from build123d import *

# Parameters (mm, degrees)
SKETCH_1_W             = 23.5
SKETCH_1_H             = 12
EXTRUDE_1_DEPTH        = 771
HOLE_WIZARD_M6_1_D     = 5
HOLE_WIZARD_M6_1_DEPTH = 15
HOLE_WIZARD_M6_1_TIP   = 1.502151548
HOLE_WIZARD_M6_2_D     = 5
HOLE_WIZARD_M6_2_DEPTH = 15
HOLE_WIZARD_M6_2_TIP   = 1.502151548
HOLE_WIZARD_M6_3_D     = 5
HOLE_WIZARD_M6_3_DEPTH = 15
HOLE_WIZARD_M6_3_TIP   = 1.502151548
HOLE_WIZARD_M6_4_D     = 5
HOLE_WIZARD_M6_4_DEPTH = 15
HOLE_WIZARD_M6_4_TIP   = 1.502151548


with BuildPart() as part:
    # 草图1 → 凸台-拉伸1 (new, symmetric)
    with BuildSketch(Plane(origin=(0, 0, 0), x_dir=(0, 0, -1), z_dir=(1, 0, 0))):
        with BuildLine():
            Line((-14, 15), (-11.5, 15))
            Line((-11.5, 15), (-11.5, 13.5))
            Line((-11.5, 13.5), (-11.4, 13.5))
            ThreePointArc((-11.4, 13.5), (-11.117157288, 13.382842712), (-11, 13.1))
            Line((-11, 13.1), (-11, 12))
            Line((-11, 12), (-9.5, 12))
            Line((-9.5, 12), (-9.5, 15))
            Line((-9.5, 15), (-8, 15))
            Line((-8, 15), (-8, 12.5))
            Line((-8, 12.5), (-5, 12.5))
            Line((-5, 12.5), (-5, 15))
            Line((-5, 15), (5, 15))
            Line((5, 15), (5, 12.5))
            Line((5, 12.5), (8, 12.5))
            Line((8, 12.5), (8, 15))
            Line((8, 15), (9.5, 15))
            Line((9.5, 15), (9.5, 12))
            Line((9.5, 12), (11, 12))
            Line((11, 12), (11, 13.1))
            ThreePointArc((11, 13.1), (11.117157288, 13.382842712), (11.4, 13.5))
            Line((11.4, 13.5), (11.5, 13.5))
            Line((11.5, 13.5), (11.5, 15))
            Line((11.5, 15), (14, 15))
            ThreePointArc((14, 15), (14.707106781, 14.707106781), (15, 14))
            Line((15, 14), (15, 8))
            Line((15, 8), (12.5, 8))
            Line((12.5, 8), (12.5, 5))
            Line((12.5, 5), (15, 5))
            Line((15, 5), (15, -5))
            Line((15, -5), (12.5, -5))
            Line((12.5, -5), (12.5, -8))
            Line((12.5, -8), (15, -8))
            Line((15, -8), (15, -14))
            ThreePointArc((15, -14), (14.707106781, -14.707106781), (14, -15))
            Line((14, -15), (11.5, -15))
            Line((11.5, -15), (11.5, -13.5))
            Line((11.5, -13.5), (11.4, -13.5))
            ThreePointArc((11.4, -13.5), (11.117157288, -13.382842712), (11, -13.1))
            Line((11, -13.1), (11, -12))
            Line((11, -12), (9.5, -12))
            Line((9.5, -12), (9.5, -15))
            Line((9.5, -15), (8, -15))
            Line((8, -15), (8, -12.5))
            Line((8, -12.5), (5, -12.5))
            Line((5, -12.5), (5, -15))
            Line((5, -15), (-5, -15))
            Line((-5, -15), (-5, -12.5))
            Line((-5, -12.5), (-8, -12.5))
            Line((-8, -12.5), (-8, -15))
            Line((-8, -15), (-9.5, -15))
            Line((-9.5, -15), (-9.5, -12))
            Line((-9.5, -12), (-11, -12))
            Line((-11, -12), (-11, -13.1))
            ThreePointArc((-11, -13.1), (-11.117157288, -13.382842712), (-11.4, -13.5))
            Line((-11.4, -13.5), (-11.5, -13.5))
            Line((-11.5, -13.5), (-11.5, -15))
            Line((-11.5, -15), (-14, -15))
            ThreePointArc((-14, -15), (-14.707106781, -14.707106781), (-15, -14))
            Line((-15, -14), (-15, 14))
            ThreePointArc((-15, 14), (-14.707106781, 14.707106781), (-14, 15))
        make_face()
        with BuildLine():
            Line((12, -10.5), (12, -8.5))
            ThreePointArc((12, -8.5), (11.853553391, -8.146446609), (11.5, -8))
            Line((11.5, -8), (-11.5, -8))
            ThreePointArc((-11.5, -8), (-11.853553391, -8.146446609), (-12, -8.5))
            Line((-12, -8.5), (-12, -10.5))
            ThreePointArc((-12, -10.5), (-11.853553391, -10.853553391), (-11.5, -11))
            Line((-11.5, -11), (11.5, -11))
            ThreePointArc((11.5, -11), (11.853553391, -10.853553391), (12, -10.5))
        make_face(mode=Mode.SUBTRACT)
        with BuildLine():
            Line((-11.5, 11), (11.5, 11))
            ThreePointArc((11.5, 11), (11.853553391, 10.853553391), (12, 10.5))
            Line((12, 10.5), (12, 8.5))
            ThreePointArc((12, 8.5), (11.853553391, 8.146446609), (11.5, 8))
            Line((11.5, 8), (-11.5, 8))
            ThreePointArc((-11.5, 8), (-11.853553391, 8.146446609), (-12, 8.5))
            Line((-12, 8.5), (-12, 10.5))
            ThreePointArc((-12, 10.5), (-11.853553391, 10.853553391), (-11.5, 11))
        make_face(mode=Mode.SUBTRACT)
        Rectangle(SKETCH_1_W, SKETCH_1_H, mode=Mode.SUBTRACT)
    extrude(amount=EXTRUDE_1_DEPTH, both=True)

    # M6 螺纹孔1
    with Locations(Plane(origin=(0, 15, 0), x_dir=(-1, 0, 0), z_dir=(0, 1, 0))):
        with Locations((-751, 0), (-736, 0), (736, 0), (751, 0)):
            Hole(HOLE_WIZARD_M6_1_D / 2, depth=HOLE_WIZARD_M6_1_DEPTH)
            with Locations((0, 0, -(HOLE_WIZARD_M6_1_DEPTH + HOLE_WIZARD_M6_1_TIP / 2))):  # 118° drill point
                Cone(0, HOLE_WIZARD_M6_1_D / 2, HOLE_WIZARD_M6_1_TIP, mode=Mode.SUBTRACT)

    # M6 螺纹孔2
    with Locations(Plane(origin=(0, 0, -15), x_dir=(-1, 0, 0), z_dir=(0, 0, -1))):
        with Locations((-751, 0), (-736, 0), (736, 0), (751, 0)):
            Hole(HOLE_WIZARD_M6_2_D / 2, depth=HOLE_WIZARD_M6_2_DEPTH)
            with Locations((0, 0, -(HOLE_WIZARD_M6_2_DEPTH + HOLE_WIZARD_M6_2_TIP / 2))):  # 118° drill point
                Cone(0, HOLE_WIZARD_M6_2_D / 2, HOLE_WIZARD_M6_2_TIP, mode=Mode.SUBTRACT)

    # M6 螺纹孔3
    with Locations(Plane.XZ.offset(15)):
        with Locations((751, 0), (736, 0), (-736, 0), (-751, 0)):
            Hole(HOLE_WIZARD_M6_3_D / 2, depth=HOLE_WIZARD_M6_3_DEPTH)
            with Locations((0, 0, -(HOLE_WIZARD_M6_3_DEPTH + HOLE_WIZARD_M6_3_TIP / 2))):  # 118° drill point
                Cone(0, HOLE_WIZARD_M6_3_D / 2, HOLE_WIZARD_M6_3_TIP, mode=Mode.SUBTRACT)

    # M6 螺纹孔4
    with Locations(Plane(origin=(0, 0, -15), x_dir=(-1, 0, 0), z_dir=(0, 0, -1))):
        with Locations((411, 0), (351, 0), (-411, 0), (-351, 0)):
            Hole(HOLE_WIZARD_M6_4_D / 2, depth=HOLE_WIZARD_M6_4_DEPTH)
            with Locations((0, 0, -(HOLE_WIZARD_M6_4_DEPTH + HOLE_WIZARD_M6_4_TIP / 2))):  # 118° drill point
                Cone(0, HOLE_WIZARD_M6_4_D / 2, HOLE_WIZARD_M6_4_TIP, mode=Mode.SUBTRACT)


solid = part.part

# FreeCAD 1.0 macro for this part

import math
import FreeCAD as App
import Part
import Sketcher
from FreeCAD import Vector
Q = App.Units.Quantity

doc = App.newDocument("Part")
body = doc.addObject("PartDesign::Body", "Body")

# Sketch on YZ plane
sketch1 = doc.addObject("Sketcher::SketchObject", "Sketch")
body.addObject(sketch1)
sketch1.AttachmentSupport = (doc.YZ_Plane, [""])
sketch1.MapMode = "FlatFace"
sketch1.addGeometry(Part.LineSegment(Vector(15, 11.5, 0), Vector(15, 14, 0)), False)
sketch1.addGeometry(Part.ArcOfCircle(Part.Circle(Vector(14, 14, 0), Vector(0, 0, 1), 1), math.radians(0), math.radians(90)), False)
sketch1.addGeometry(Part.LineSegment(Vector(14, 15, 0), Vector(-14, 15, 0)), False)
sketch1.addGeometry(Part.ArcOfCircle(Part.Circle(Vector(-14, 14, 0), Vector(0, 0, 1), 1), math.radians(90), math.radians(180)), False)
sketch1.addGeometry(Part.LineSegment(Vector(-15, 14, 0), Vector(-15, 11.5, 0)), False)
sketch1.addGeometry(Part.LineSegment(Vector(-15, 11.5, 0), Vector(-13.5, 11.5, 0)), False)
sketch1.addGeometry(Part.LineSegment(Vector(-13.5, 11.5, 0), Vector(-13.5, 11.4, 0)), False)
sketch1.addGeometry(Part.ArcOfCircle(Part.Circle(Vector(-13.1, 11.4, 0), Vector(0, 0, 1), 0.4), math.radians(-180), math.radians(-90)), False)
sketch1.addGeometry(Part.LineSegment(Vector(-13.1, 11, 0), Vector(-12, 11, 0)), False)
sketch1.addGeometry(Part.LineSegment(Vector(-12, 11, 0), Vector(-12, 9.5, 0)), False)
sketch1.addGeometry(Part.LineSegment(Vector(-12, 9.5, 0), Vector(-15, 9.5, 0)), False)
sketch1.addGeometry(Part.LineSegment(Vector(-15, 9.5, 0), Vector(-15, 8, 0)), False)
sketch1.addGeometry(Part.LineSegment(Vector(-15, 8, 0), Vector(-12.5, 8, 0)), False)
sketch1.addGeometry(Part.LineSegment(Vector(-12.5, 8, 0), Vector(-12.5, 5, 0)), False)
sketch1.addGeometry(Part.LineSegment(Vector(-12.5, 5, 0), Vector(-15, 5, 0)), False)
sketch1.addGeometry(Part.LineSegment(Vector(-15, 5, 0), Vector(-15, -5, 0)), False)
sketch1.addGeometry(Part.LineSegment(Vector(-15, -5, 0), Vector(-12.5, -5, 0)), False)
sketch1.addGeometry(Part.LineSegment(Vector(-12.5, -5, 0), Vector(-12.5, -8, 0)), False)
sketch1.addGeometry(Part.LineSegment(Vector(-12.5, -8, 0), Vector(-15, -8, 0)), False)
sketch1.addGeometry(Part.LineSegment(Vector(-15, -8, 0), Vector(-15, -9.5, 0)), False)
sketch1.addGeometry(Part.LineSegment(Vector(-15, -9.5, 0), Vector(-12, -9.5, 0)), False)
sketch1.addGeometry(Part.LineSegment(Vector(-12, -9.5, 0), Vector(-12, -11, 0)), False)
sketch1.addGeometry(Part.LineSegment(Vector(-12, -11, 0), Vector(-13.1, -11, 0)), False)
sketch1.addGeometry(Part.ArcOfCircle(Part.Circle(Vector(-13.1, -11.4, 0), Vector(0, 0, 1), 0.4), math.radians(90), math.radians(180)), False)
sketch1.addGeometry(Part.LineSegment(Vector(-13.5, -11.4, 0), Vector(-13.5, -11.5, 0)), False)
sketch1.addGeometry(Part.LineSegment(Vector(-13.5, -11.5, 0), Vector(-15, -11.5, 0)), False)
sketch1.addGeometry(Part.LineSegment(Vector(-15, -11.5, 0), Vector(-15, -14, 0)), False)
sketch1.addGeometry(Part.ArcOfCircle(Part.Circle(Vector(-14, -14, 0), Vector(0, 0, 1), 1), math.radians(-180), math.radians(-90)), False)
sketch1.addGeometry(Part.LineSegment(Vector(-14, -15, 0), Vector(-8, -15, 0)), False)
sketch1.addGeometry(Part.LineSegment(Vector(-8, -15, 0), Vector(-8, -12.5, 0)), False)
sketch1.addGeometry(Part.LineSegment(Vector(-8, -12.5, 0), Vector(-5, -12.5, 0)), False)
sketch1.addGeometry(Part.LineSegment(Vector(-5, -12.5, 0), Vector(-5, -15, 0)), False)
sketch1.addGeometry(Part.LineSegment(Vector(-5, -15, 0), Vector(5, -15, 0)), False)
sketch1.addGeometry(Part.LineSegment(Vector(5, -15, 0), Vector(5, -12.5, 0)), False)
sketch1.addGeometry(Part.LineSegment(Vector(5, -12.5, 0), Vector(8, -12.5, 0)), False)
sketch1.addGeometry(Part.LineSegment(Vector(8, -12.5, 0), Vector(8, -15, 0)), False)
sketch1.addGeometry(Part.LineSegment(Vector(8, -15, 0), Vector(14, -15, 0)), False)
sketch1.addGeometry(Part.ArcOfCircle(Part.Circle(Vector(14, -14, 0), Vector(0, 0, 1), 1), math.radians(-90), math.radians(0)), False)
sketch1.addGeometry(Part.LineSegment(Vector(15, -14, 0), Vector(15, -11.5, 0)), False)
sketch1.addGeometry(Part.LineSegment(Vector(15, -11.5, 0), Vector(13.5, -11.5, 0)), False)
sketch1.addGeometry(Part.LineSegment(Vector(13.5, -11.5, 0), Vector(13.5, -11.4, 0)), False)
sketch1.addGeometry(Part.ArcOfCircle(Part.Circle(Vector(13.1, -11.4, 0), Vector(0, 0, 1), 0.4), math.radians(0), math.radians(90)), False)
sketch1.addGeometry(Part.LineSegment(Vector(13.1, -11, 0), Vector(12, -11, 0)), False)
sketch1.addGeometry(Part.LineSegment(Vector(12, -11, 0), Vector(12, -9.5, 0)), False)
sketch1.addGeometry(Part.LineSegment(Vector(12, -9.5, 0), Vector(15, -9.5, 0)), False)
sketch1.addGeometry(Part.LineSegment(Vector(15, -9.5, 0), Vector(15, -8, 0)), False)
sketch1.addGeometry(Part.LineSegment(Vector(15, -8, 0), Vector(12.5, -8, 0)), False)
sketch1.addGeometry(Part.LineSegment(Vector(12.5, -8, 0), Vector(12.5, -5, 0)), False)
sketch1.addGeometry(Part.LineSegment(Vector(12.5, -5, 0), Vector(15, -5, 0)), False)
sketch1.addGeometry(Part.LineSegment(Vector(15, -5, 0), Vector(15, 5, 0)), False)
sketch1.addGeometry(Part.LineSegment(Vector(15, 5, 0), Vector(12.5, 5, 0)), False)
sketch1.addGeometry(Part.LineSegment(Vector(12.5, 5, 0), Vector(12.5, 8, 0)), False)
sketch1.addGeometry(Part.LineSegment(Vector(12.5, 8, 0), Vector(15, 8, 0)), False)
sketch1.addGeometry(Part.LineSegment(Vector(15, 8, 0), Vector(15, 9.5, 0)), False)
sketch1.addGeometry(Part.LineSegment(Vector(15, 9.5, 0), Vector(12, 9.5, 0)), False)
sketch1.addGeometry(Part.LineSegment(Vector(12, 9.5, 0), Vector(12, 11, 0)), False)
sketch1.addGeometry(Part.LineSegment(Vector(12, 11, 0), Vector(13.1, 11, 0)), False)
sketch1.addGeometry(Part.ArcOfCircle(Part.Circle(Vector(13.1, 11.4, 0), Vector(0, 0, 1), 0.4), math.radians(-90), math.radians(0)), False)
sketch1.addGeometry(Part.LineSegment(Vector(13.5, 11.4, 0), Vector(13.5, 11.5, 0)), False)
sketch1.addGeometry(Part.LineSegment(Vector(13.5, 11.5, 0), Vector(15, 11.5, 0)), False)
sketch1.addGeometry(Part.ArcOfCircle(Part.Circle(Vector(-10.5, -11.5, 0), Vector(0, 0, 1), 0.5), math.radians(180), math.radians(270)), False)
sketch1.addGeometry(Part.LineSegment(Vector(-11, -11.5, 0), Vector(-11, 11.5, 0)), False)
sketch1.addGeometry(Part.ArcOfCircle(Part.Circle(Vector(-10.5, 11.5, 0), Vector(0, 0, 1), 0.5), math.radians(90), math.radians(180)), False)
sketch1.addGeometry(Part.LineSegment(Vector(-10.5, 12, 0), Vector(-8.5, 12, 0)), False)
sketch1.addGeometry(Part.ArcOfCircle(Part.Circle(Vector(-8.5, 11.5, 0), Vector(0, 0, 1), 0.5), math.radians(0), math.radians(90)), False)
sketch1.addGeometry(Part.LineSegment(Vector(-8, 11.5, 0), Vector(-8, -11.5, 0)), False)
sketch1.addGeometry(Part.ArcOfCircle(Part.Circle(Vector(-8.5, -11.5, 0), Vector(0, 0, 1), 0.5), math.radians(-90), math.radians(0)), False)
sketch1.addGeometry(Part.LineSegment(Vector(-8.5, -12, 0), Vector(-10.5, -12, 0)), False)
sketch1.addGeometry(Part.LineSegment(Vector(-6, 11.75, 0), Vector(6, 11.75, 0)), False)
sketch1.addGeometry(Part.LineSegment(Vector(6, 11.75, 0), Vector(6, -11.75, 0)), False)
sketch1.addGeometry(Part.LineSegment(Vector(6, -11.75, 0), Vector(-6, -11.75, 0)), False)
sketch1.addGeometry(Part.LineSegment(Vector(-6, -11.75, 0), Vector(-6, 11.75, 0)), False)
sketch1.addGeometry(Part.LineSegment(Vector(11, 11.5, 0), Vector(11, -11.5, 0)), False)
sketch1.addGeometry(Part.ArcOfCircle(Part.Circle(Vector(10.5, -11.5, 0), Vector(0, 0, 1), 0.5), math.radians(-90), math.radians(0)), False)
sketch1.addGeometry(Part.LineSegment(Vector(10.5, -12, 0), Vector(8.5, -12, 0)), False)
sketch1.addGeometry(Part.ArcOfCircle(Part.Circle(Vector(8.5, -11.5, 0), Vector(0, 0, 1), 0.5), math.radians(180), math.radians(270)), False)
sketch1.addGeometry(Part.LineSegment(Vector(8, -11.5, 0), Vector(8, 11.5, 0)), False)
sketch1.addGeometry(Part.ArcOfCircle(Part.Circle(Vector(8.5, 11.5, 0), Vector(0, 0, 1), 0.5), math.radians(90), math.radians(180)), False)
sketch1.addGeometry(Part.LineSegment(Vector(8.5, 12, 0), Vector(10.5, 12, 0)), False)
sketch1.addGeometry(Part.ArcOfCircle(Part.Circle(Vector(10.5, 11.5, 0), Vector(0, 0, 1), 0.5), math.radians(0), math.radians(90)), False)
sketch1.addConstraint(Sketcher.Constraint("Tangent", 0, 2, 1, 1))
sketch1.addConstraint(Sketcher.Constraint("Tangent", 1, 2, 2, 1))
sketch1.addConstraint(Sketcher.Constraint("Tangent", 2, 2, 3, 1))
sketch1.addConstraint(Sketcher.Constraint("Tangent", 3, 2, 4, 1))
sketch1.addConstraint(Sketcher.Constraint("Coincident", 4, 2, 5, 1))
sketch1.addConstraint(Sketcher.Constraint("Coincident", 5, 2, 6, 1))
sketch1.addConstraint(Sketcher.Constraint("Tangent", 6, 2, 7, 1))
sketch1.addConstraint(Sketcher.Constraint("Tangent", 7, 2, 8, 1))
sketch1.addConstraint(Sketcher.Constraint("Coincident", 8, 2, 9, 1))
sketch1.addConstraint(Sketcher.Constraint("Coincident", 9, 2, 10, 1))
sketch1.addConstraint(Sketcher.Constraint("Coincident", 10, 2, 11, 1))
sketch1.addConstraint(Sketcher.Constraint("Coincident", 11, 2, 12, 1))
sketch1.addConstraint(Sketcher.Constraint("Coincident", 12, 2, 13, 1))
sketch1.addConstraint(Sketcher.Constraint("Coincident", 13, 2, 14, 1))
sketch1.addConstraint(Sketcher.Constraint("Coincident", 14, 2, 15, 1))
sketch1.addConstraint(Sketcher.Constraint("Coincident", 15, 2, 16, 1))
sketch1.addConstraint(Sketcher.Constraint("Coincident", 16, 2, 17, 1))
sketch1.addConstraint(Sketcher.Constraint("Coincident", 17, 2, 18, 1))
sketch1.addConstraint(Sketcher.Constraint("Coincident", 18, 2, 19, 1))
sketch1.addConstraint(Sketcher.Constraint("Coincident", 19, 2, 20, 1))
sketch1.addConstraint(Sketcher.Constraint("Coincident", 20, 2, 21, 1))
sketch1.addConstraint(Sketcher.Constraint("Coincident", 21, 2, 22, 1))
sketch1.addConstraint(Sketcher.Constraint("Tangent", 22, 2, 23, 1))
sketch1.addConstraint(Sketcher.Constraint("Tangent", 23, 2, 24, 1))
sketch1.addConstraint(Sketcher.Constraint("Coincident", 24, 2, 25, 1))
sketch1.addConstraint(Sketcher.Constraint("Coincident", 25, 2, 26, 1))
sketch1.addConstraint(Sketcher.Constraint("Tangent", 26, 2, 27, 1))
sketch1.addConstraint(Sketcher.Constraint("Tangent", 27, 2, 28, 1))
sketch1.addConstraint(Sketcher.Constraint("Coincident", 28, 2, 29, 1))
sketch1.addConstraint(Sketcher.Constraint("Coincident", 29, 2, 30, 1))
sketch1.addConstraint(Sketcher.Constraint("Coincident", 30, 2, 31, 1))
sketch1.addConstraint(Sketcher.Constraint("Coincident", 31, 2, 32, 1))
sketch1.addConstraint(Sketcher.Constraint("Coincident", 32, 2, 33, 1))
sketch1.addConstraint(Sketcher.Constraint("Coincident", 33, 2, 34, 1))
sketch1.addConstraint(Sketcher.Constraint("Coincident", 34, 2, 35, 1))
sketch1.addConstraint(Sketcher.Constraint("Coincident", 35, 2, 36, 1))
sketch1.addConstraint(Sketcher.Constraint("Tangent", 36, 2, 37, 1))
sketch1.addConstraint(Sketcher.Constraint("Tangent", 37, 2, 38, 1))
sketch1.addConstraint(Sketcher.Constraint("Coincident", 38, 2, 39, 1))
sketch1.addConstraint(Sketcher.Constraint("Coincident", 39, 2, 40, 1))
sketch1.addConstraint(Sketcher.Constraint("Tangent", 40, 2, 41, 1))
sketch1.addConstraint(Sketcher.Constraint("Tangent", 41, 2, 42, 1))
sketch1.addConstraint(Sketcher.Constraint("Coincident", 42, 2, 43, 1))
sketch1.addConstraint(Sketcher.Constraint("Coincident", 43, 2, 44, 1))
sketch1.addConstraint(Sketcher.Constraint("Coincident", 44, 2, 45, 1))
sketch1.addConstraint(Sketcher.Constraint("Coincident", 45, 2, 46, 1))
sketch1.addConstraint(Sketcher.Constraint("Coincident", 46, 2, 47, 1))
sketch1.addConstraint(Sketcher.Constraint("Coincident", 47, 2, 48, 1))
sketch1.addConstraint(Sketcher.Constraint("Coincident", 48, 2, 49, 1))
sketch1.addConstraint(Sketcher.Constraint("Coincident", 49, 2, 50, 1))
sketch1.addConstraint(Sketcher.Constraint("Coincident", 50, 2, 51, 1))
sketch1.addConstraint(Sketcher.Constraint("Coincident", 51, 2, 52, 1))
sketch1.addConstraint(Sketcher.Constraint("Coincident", 52, 2, 53, 1))
sketch1.addConstraint(Sketcher.Constraint("Coincident", 53, 2, 54, 1))
sketch1.addConstraint(Sketcher.Constraint("Coincident", 54, 2, 55, 1))
sketch1.addConstraint(Sketcher.Constraint("Coincident", 55, 2, 56, 1))
sketch1.addConstraint(Sketcher.Constraint("Tangent", 56, 2, 57, 1))
sketch1.addConstraint(Sketcher.Constraint("Tangent", 57, 2, 58, 1))
sketch1.addConstraint(Sketcher.Constraint("Coincident", 58, 2, 59, 1))
sketch1.addConstraint(Sketcher.Constraint("Coincident", 59, 2, 0, 1))
sketch1.addConstraint(Sketcher.Constraint("Tangent", 60, 1, 61, 1))
sketch1.addConstraint(Sketcher.Constraint("Tangent", 61, 2, 62, 2))
sketch1.addConstraint(Sketcher.Constraint("Tangent", 62, 1, 63, 1))
sketch1.addConstraint(Sketcher.Constraint("Tangent", 63, 2, 64, 2))
sketch1.addConstraint(Sketcher.Constraint("Tangent", 64, 1, 65, 1))
sketch1.addConstraint(Sketcher.Constraint("Tangent", 65, 2, 66, 2))
sketch1.addConstraint(Sketcher.Constraint("Tangent", 66, 1, 67, 1))
sketch1.addConstraint(Sketcher.Constraint("Tangent", 67, 2, 60, 2))
sketch1.addConstraint(Sketcher.Constraint("Coincident", 68, 2, 69, 1))
sketch1.addConstraint(Sketcher.Constraint("Coincident", 69, 2, 70, 1))
sketch1.addConstraint(Sketcher.Constraint("Coincident", 70, 2, 71, 1))
sketch1.addConstraint(Sketcher.Constraint("Coincident", 71, 2, 68, 1))
sketch1.addConstraint(Sketcher.Constraint("Tangent", 72, 2, 73, 2))
sketch1.addConstraint(Sketcher.Constraint("Tangent", 73, 1, 74, 1))
sketch1.addConstraint(Sketcher.Constraint("Tangent", 74, 2, 75, 2))
sketch1.addConstraint(Sketcher.Constraint("Tangent", 75, 1, 76, 1))
sketch1.addConstraint(Sketcher.Constraint("Tangent", 76, 2, 77, 2))
sketch1.addConstraint(Sketcher.Constraint("Tangent", 77, 1, 78, 1))
sketch1.addConstraint(Sketcher.Constraint("Tangent", 78, 2, 79, 2))
sketch1.addConstraint(Sketcher.Constraint("Tangent", 79, 1, 72, 1))
sketch1.addConstraint(Sketcher.Constraint("Vertical", 0))
sketch1.addConstraint(Sketcher.Constraint("Horizontal", 2))
sketch1.addConstraint(Sketcher.Constraint("Vertical", 4))
sketch1.addConstraint(Sketcher.Constraint("Horizontal", 5))
sketch1.addConstraint(Sketcher.Constraint("Vertical", 6))
sketch1.addConstraint(Sketcher.Constraint("Horizontal", 8))
sketch1.addConstraint(Sketcher.Constraint("Vertical", 9))
sketch1.addConstraint(Sketcher.Constraint("Horizontal", 10))
sketch1.addConstraint(Sketcher.Constraint("Vertical", 11))
sketch1.addConstraint(Sketcher.Constraint("Horizontal", 12))
sketch1.addConstraint(Sketcher.Constraint("Vertical", 13))
sketch1.addConstraint(Sketcher.Constraint("Horizontal", 14))
sketch1.addConstraint(Sketcher.Constraint("Vertical", 15))
sketch1.addConstraint(Sketcher.Constraint("Horizontal", 16))
sketch1.addConstraint(Sketcher.Constraint("Vertical", 17))
sketch1.addConstraint(Sketcher.Constraint("Horizontal", 18))
sketch1.addConstraint(Sketcher.Constraint("Vertical", 19))
sketch1.addConstraint(Sketcher.Constraint("Horizontal", 20))
sketch1.addConstraint(Sketcher.Constraint("Vertical", 21))
sketch1.addConstraint(Sketcher.Constraint("Horizontal", 22))
sketch1.addConstraint(Sketcher.Constraint("Vertical", 24))
sketch1.addConstraint(Sketcher.Constraint("Horizontal", 25))
sketch1.addConstraint(Sketcher.Constraint("Vertical", 26))
sketch1.addConstraint(Sketcher.Constraint("Horizontal", 28))
sketch1.addConstraint(Sketcher.Constraint("Vertical", 29))
sketch1.addConstraint(Sketcher.Constraint("Horizontal", 30))
sketch1.addConstraint(Sketcher.Constraint("Vertical", 31))
sketch1.addConstraint(Sketcher.Constraint("Horizontal", 32))
sketch1.addConstraint(Sketcher.Constraint("Vertical", 33))
sketch1.addConstraint(Sketcher.Constraint("Horizontal", 34))
sketch1.addConstraint(Sketcher.Constraint("Vertical", 35))
sketch1.addConstraint(Sketcher.Constraint("Horizontal", 36))
sketch1.addConstraint(Sketcher.Constraint("Vertical", 38))
sketch1.addConstraint(Sketcher.Constraint("Horizontal", 39))
sketch1.addConstraint(Sketcher.Constraint("Vertical", 40))
sketch1.addConstraint(Sketcher.Constraint("Horizontal", 42))
sketch1.addConstraint(Sketcher.Constraint("Vertical", 43))
sketch1.addConstraint(Sketcher.Constraint("Horizontal", 44))
sketch1.addConstraint(Sketcher.Constraint("Vertical", 45))
sketch1.addConstraint(Sketcher.Constraint("Horizontal", 46))
sketch1.addConstraint(Sketcher.Constraint("Vertical", 47))
sketch1.addConstraint(Sketcher.Constraint("Horizontal", 48))
sketch1.addConstraint(Sketcher.Constraint("Vertical", 49))
sketch1.addConstraint(Sketcher.Constraint("Horizontal", 50))
sketch1.addConstraint(Sketcher.Constraint("Vertical", 51))
sketch1.addConstraint(Sketcher.Constraint("Horizontal", 52))
sketch1.addConstraint(Sketcher.Constraint("Vertical", 53))
sketch1.addConstraint(Sketcher.Constraint("Horizontal", 54))
sketch1.addConstraint(Sketcher.Constraint("Vertical", 55))
sketch1.addConstraint(Sketcher.Constraint("Horizontal", 56))
sketch1.addConstraint(Sketcher.Constraint("Vertical", 58))
sketch1.addConstraint(Sketcher.Constraint("Horizontal", 59))
sketch1.addConstraint(Sketcher.Constraint("Vertical", 61))
sketch1.addConstraint(Sketcher.Constraint("Horizontal", 63))
sketch1.addConstraint(Sketcher.Constraint("Vertical", 65))
sketch1.addConstraint(Sketcher.Constraint("Horizontal", 67))
sketch1.addConstraint(Sketcher.Constraint("Horizontal", 68))
sketch1.addConstraint(Sketcher.Constraint("Vertical", 69))
sketch1.addConstraint(Sketcher.Constraint("Horizontal", 70))
sketch1.addConstraint(Sketcher.Constraint("Vertical", 71))
sketch1.addConstraint(Sketcher.Constraint("Vertical", 72))
sketch1.addConstraint(Sketcher.Constraint("Horizontal", 74))
sketch1.addConstraint(Sketcher.Constraint("Vertical", 76))
sketch1.addConstraint(Sketcher.Constraint("Horizontal", 78))
sketch1.addConstraint(Sketcher.Constraint("Equal", 1, 3))
sketch1.addConstraint(Sketcher.Constraint("Equal", 7, 23))
sketch1.addConstraint(Sketcher.Constraint("Equal", 3, 27))
sketch1.addConstraint(Sketcher.Constraint("Equal", 27, 37))
sketch1.addConstraint(Sketcher.Constraint("Equal", 23, 41))
sketch1.addConstraint(Sketcher.Constraint("Equal", 41, 57))
sketch1.addConstraint(Sketcher.Constraint("Equal", 60, 62))
sketch1.addConstraint(Sketcher.Constraint("Equal", 62, 64))
sketch1.addConstraint(Sketcher.Constraint("Equal", 64, 66))
sketch1.addConstraint(Sketcher.Constraint("Equal", 66, 73))
sketch1.addConstraint(Sketcher.Constraint("Equal", 73, 75))
sketch1.addConstraint(Sketcher.Constraint("Equal", 75, 77))
sketch1.addConstraint(Sketcher.Constraint("Equal", 77, 79))
sketch1.addConstraint(Sketcher.Constraint("Symmetric", 1, 3, 27, 3, -1, 1))
sketch1.addConstraint(Sketcher.Constraint("Symmetric", 3, 3, 37, 3, -1, 1))
sketch1.addConstraint(Sketcher.Constraint("Symmetric", 7, 3, 41, 3, -1, 1))
sketch1.addConstraint(Sketcher.Constraint("Symmetric", 23, 3, 57, 3, -1, 1))
sketch1.addConstraint(Sketcher.Constraint("Symmetric", 62, 3, 73, 3, -1, 1))
sketch1.addConstraint(Sketcher.Constraint("Symmetric", 66, 3, 77, 3, -1, 1))
sketch1.addConstraint(Sketcher.Constraint("Symmetric", 9, 2, 43, 2, -1, 1))
sketch1.addConstraint(Sketcher.Constraint("Symmetric", 11, 2, 45, 2, -1, 1))
sketch1.addConstraint(Sketcher.Constraint("Symmetric", 13, 2, 47, 2, -1, 1))
sketch1.addConstraint(Sketcher.Constraint("Symmetric", 15, 2, 49, 2, -1, 1))
sketch1.addConstraint(Sketcher.Constraint("Symmetric", 17, 2, 51, 2, -1, 1))
sketch1.addConstraint(Sketcher.Constraint("Symmetric", 19, 2, 53, 2, -1, 1))
sketch1.addConstraint(Sketcher.Constraint("Symmetric", 68, 2, 70, 2, -1, 1))
sketch1.addConstraint(Sketcher.Constraint("Symmetric", 23, 3, 41, 3, -2))
sketch1.addConstraint(Sketcher.Constraint("Symmetric", 30, 2, 33, 2, -2))
sketch1.addConstraint(Sketcher.Constraint("Symmetric", 25, 2, 38, 2, -2))
sketch1.addConstraint(Sketcher.Constraint("Symmetric", 20, 2, 43, 2, -2))
sketch1.addConstraint(Sketcher.Constraint("Symmetric", 18, 2, 45, 2, -2))
sketch1.addConstraint(Sketcher.Constraint("Symmetric", 16, 2, 47, 2, -2))
sketch1.addConstraint(Sketcher.Constraint("Horizontal", 66, 3, 73, 3))
sketch1.addConstraint(Sketcher.Constraint("Horizontal", 79, 3, 4, 2))
sketch1.addConstraint(Sketcher.Constraint("Horizontal", 75, 3, 24, 2))
sketch1.addConstraint(Sketcher.Constraint("Horizontal", 28, 2, 31, 2))
sketch1.addConstraint(Sketcher.Constraint("Horizontal", 5, 2, 58, 2))
sketch1.addConstraint(Sketcher.Constraint("Vertical", 4, 2, 10, 2))
sketch1.addConstraint(Sketcher.Constraint("Vertical", 11, 2, 14, 2))
sketch1.addConstraint(Sketcher.Constraint("Vertical", 43, 2, 54, 2))
sketch1.addConstraint(Sketcher.Constraint("Vertical", 29, 2, 64, 1))
sketch1.addConstraint(Sketcher.Constraint("Vertical", 35, 2, 75, 1))
sketch1.addConstraint(Sketcher.Constraint("Equal", 20, 30))
sketch1.addConstraint(Sketcher.Constraint("Equal", 52, 0))
sketch1.addConstraint(Sketcher.Constraint("Equal", 59, 9))
sketch1.addConstraint(Sketcher.Constraint("Equal", 9, 11))
sketch1.addConstraint(Sketcher.Constraint("Equal", 54, 13))
sketch1.addConstraint(Sketcher.Constraint("Equal", 32, 15))
sketch1.addConstraint(Sketcher.Constraint("Equal", 26, 29))
sketch1.addConstraint(Sketcher.Constraint("Radius", 1, Q("1 mm")))
sketch1.addConstraint(Sketcher.Constraint("Radius", 7, Q("0.4 mm")))
sketch1.addConstraint(Sketcher.Constraint("Radius", 60, Q("0.5 mm")))
sketch1.addConstraint(Sketcher.Constraint("DistanceX", 2, 2, 2, 1, Q("28 mm")))
sketch1.addConstraint(Sketcher.Constraint("DistanceX", 10, 2, 10, 1, Q("3 mm")))
sketch1.addConstraint(Sketcher.Constraint("DistanceX", 28, 1, 28, 2, Q("6 mm")))
sketch1.addConstraint(Sketcher.Constraint("DistanceX", 63, 1, 63, 2, Q("2 mm")))
sketch1.addConstraint(Sketcher.Constraint("DistanceX", 68, 1, 68, 2, Q("12 mm")))
sketch1.addConstraint(Sketcher.Constraint("DistanceY", 61, 1, 61, 2, Q("23 mm")))
sketch1.addConstraint(Sketcher.Constraint("DistanceX", 5, 1, 5, 2, Q("1.5 mm")))
sketch1.addConstraint(Sketcher.Constraint("DistanceX", 12, 1, 12, 2, Q("2.5 mm")))
sketch1.addConstraint(Sketcher.Constraint("DistanceY", 69, 2, 69, 1, Q("23.5 mm")))
pad1 = doc.addObject("PartDesign::Pad", "Pad")
body.addObject(pad1)
pad1.Profile = sketch1
pad1.Length = 1542
pad1.Midplane = True

# Sketch on XZ plane
sketch2 = doc.addObject("Sketcher::SketchObject", "Sketch001")
body.addObject(sketch2)
sketch2.AttachmentSupport = (doc.XZ_Plane, [""])
sketch2.MapMode = "FlatFace"
sketch2.AttachmentOffset = App.Placement(Vector(0, 0, -15), App.Rotation())
sketch2.addGeometry(Part.Circle(Vector(751, 0, 0), Vector(0, 0, 1), 2.5), False)
sketch2.addGeometry(Part.Circle(Vector(736, 0, 0), Vector(0, 0, 1), 2.5), False)
sketch2.addGeometry(Part.Circle(Vector(-736, 0, 0), Vector(0, 0, 1), 2.5), False)
sketch2.addGeometry(Part.Circle(Vector(-751, 0, 0), Vector(0, 0, 1), 2.5), False)
sketch2.addConstraint(Sketcher.Constraint("Equal", 0, 1))
sketch2.addConstraint(Sketcher.Constraint("Equal", 1, 2))
sketch2.addConstraint(Sketcher.Constraint("Equal", 2, 3))
sketch2.addConstraint(Sketcher.Constraint("Symmetric", 1, 3, 2, 3, -1, 1))
sketch2.addConstraint(Sketcher.Constraint("Symmetric", 0, 3, 3, 3, -1, 1))
sketch2.addConstraint(Sketcher.Constraint("PointOnObject", 0, 3, -1))
sketch2.addConstraint(Sketcher.Constraint("PointOnObject", 1, 3, -1))
sketch2.addConstraint(Sketcher.Constraint("Diameter", 0, Q("5 mm")))
sketch2.addConstraint(Sketcher.Constraint("DistanceX", -1, 1, 0, 3, Q("751 mm")))
sketch2.addConstraint(Sketcher.Constraint("DistanceX", -1, 1, 1, 3, Q("736 mm")))
doc.recompute()
hole = doc.addObject("PartDesign::Hole", "Hole")
body.addObject(hole)
hole.Profile = sketch2
hole.ThreadType = "None"
hole.Diameter = 5
hole.DepthType = "Dimension"
hole.Depth = 15
hole.DrillPoint = "Angled"
hole.DrillPointAngle = 118
hole.Reversed = True

# Sketch on XY plane
sketch3 = doc.addObject("Sketcher::SketchObject", "Sketch002")
body.addObject(sketch3)
sketch3.AttachmentSupport = (doc.XY_Plane, [""])
sketch3.MapMode = "FlatFace"
sketch3.AttachmentOffset = App.Placement(Vector(0, 0, -15), App.Rotation())
sketch3.addGeometry(Part.Circle(Vector(751, 0, 0), Vector(0, 0, 1), 2.5), False)
sketch3.addGeometry(Part.Circle(Vector(736, 0, 0), Vector(0, 0, 1), 2.5), False)
sketch3.addGeometry(Part.Circle(Vector(-736, 0, 0), Vector(0, 0, 1), 2.5), False)
sketch3.addGeometry(Part.Circle(Vector(-751, 0, 0), Vector(0, 0, 1), 2.5), False)
sketch3.addConstraint(Sketcher.Constraint("Equal", 0, 1))
sketch3.addConstraint(Sketcher.Constraint("Equal", 1, 2))
sketch3.addConstraint(Sketcher.Constraint("Equal", 2, 3))
sketch3.addConstraint(Sketcher.Constraint("Symmetric", 1, 3, 2, 3, -1, 1))
sketch3.addConstraint(Sketcher.Constraint("Symmetric", 0, 3, 3, 3, -1, 1))
sketch3.addConstraint(Sketcher.Constraint("PointOnObject", 0, 3, -1))
sketch3.addConstraint(Sketcher.Constraint("PointOnObject", 1, 3, -1))
sketch3.addConstraint(Sketcher.Constraint("Diameter", 0, Q("5 mm")))
sketch3.addConstraint(Sketcher.Constraint("DistanceX", -1, 1, 0, 3, Q("751 mm")))
sketch3.addConstraint(Sketcher.Constraint("DistanceX", -1, 1, 1, 3, Q("736 mm")))
doc.recompute()
hole2 = doc.addObject("PartDesign::Hole", "Hole001")
body.addObject(hole2)
hole2.Profile = sketch3
hole2.ThreadType = "None"
hole2.Diameter = 5
hole2.DepthType = "Dimension"
hole2.Depth = 15
hole2.DrillPoint = "Angled"
hole2.DrillPointAngle = 118
hole2.Reversed = True

# Sketch on XZ plane
sketch4 = doc.addObject("Sketcher::SketchObject", "Sketch003")
body.addObject(sketch4)
sketch4.AttachmentSupport = (doc.XZ_Plane, [""])
sketch4.MapMode = "FlatFace"
sketch4.AttachmentOffset = App.Placement(Vector(0, 0, 15), App.Rotation())
sketch4.addGeometry(Part.Circle(Vector(751, 0, 0), Vector(0, 0, 1), 2.5), False)
sketch4.addGeometry(Part.Circle(Vector(736, 0, 0), Vector(0, 0, 1), 2.5), False)
sketch4.addGeometry(Part.Circle(Vector(-736, 0, 0), Vector(0, 0, 1), 2.5), False)
sketch4.addGeometry(Part.Circle(Vector(-751, 0, 0), Vector(0, 0, 1), 2.5), False)
sketch4.addConstraint(Sketcher.Constraint("Equal", 0, 1))
sketch4.addConstraint(Sketcher.Constraint("Equal", 1, 2))
sketch4.addConstraint(Sketcher.Constraint("Equal", 2, 3))
sketch4.addConstraint(Sketcher.Constraint("Symmetric", 1, 3, 2, 3, -1, 1))
sketch4.addConstraint(Sketcher.Constraint("Symmetric", 0, 3, 3, 3, -1, 1))
sketch4.addConstraint(Sketcher.Constraint("PointOnObject", 0, 3, -1))
sketch4.addConstraint(Sketcher.Constraint("PointOnObject", 1, 3, -1))
sketch4.addConstraint(Sketcher.Constraint("Diameter", 0, Q("5 mm")))
sketch4.addConstraint(Sketcher.Constraint("DistanceX", -1, 1, 0, 3, Q("751 mm")))
sketch4.addConstraint(Sketcher.Constraint("DistanceX", -1, 1, 1, 3, Q("736 mm")))
doc.recompute()
hole3 = doc.addObject("PartDesign::Hole", "Hole002")
body.addObject(hole3)
hole3.Profile = sketch4
hole3.ThreadType = "None"
hole3.Diameter = 5
hole3.DepthType = "Dimension"
hole3.Depth = 15
hole3.DrillPoint = "Angled"
hole3.DrillPointAngle = 118

# Sketch on XY plane
sketch5 = doc.addObject("Sketcher::SketchObject", "Sketch004")
body.addObject(sketch5)
sketch5.AttachmentSupport = (doc.XY_Plane, [""])
sketch5.MapMode = "FlatFace"
sketch5.AttachmentOffset = App.Placement(Vector(0, 0, -15), App.Rotation())
sketch5.addGeometry(Part.Circle(Vector(-411, 0, 0), Vector(0, 0, 1), 2.5), False)
sketch5.addGeometry(Part.Circle(Vector(-351, 0, 0), Vector(0, 0, 1), 2.5), False)
sketch5.addGeometry(Part.Circle(Vector(411, 0, 0), Vector(0, 0, 1), 2.5), False)
sketch5.addGeometry(Part.Circle(Vector(351, 0, 0), Vector(0, 0, 1), 2.5), False)
sketch5.addConstraint(Sketcher.Constraint("Equal", 0, 1))
sketch5.addConstraint(Sketcher.Constraint("Equal", 1, 2))
sketch5.addConstraint(Sketcher.Constraint("Equal", 2, 3))
sketch5.addConstraint(Sketcher.Constraint("Symmetric", 0, 3, 2, 3, -1, 1))
sketch5.addConstraint(Sketcher.Constraint("Symmetric", 1, 3, 3, 3, -1, 1))
sketch5.addConstraint(Sketcher.Constraint("PointOnObject", 0, 3, -1))
sketch5.addConstraint(Sketcher.Constraint("PointOnObject", 1, 3, -1))
sketch5.addConstraint(Sketcher.Constraint("Diameter", 0, Q("5 mm")))
sketch5.addConstraint(Sketcher.Constraint("DistanceX", 0, 3, -1, 1, Q("411 mm")))
sketch5.addConstraint(Sketcher.Constraint("DistanceX", 1, 3, -1, 1, Q("351 mm")))
doc.recompute()
hole4 = doc.addObject("PartDesign::Hole", "Hole003")
body.addObject(hole4)
hole4.Profile = sketch5
hole4.ThreadType = "None"
hole4.Diameter = 5
hole4.DepthType = "Dimension"
hole4.Depth = 15
hole4.DrillPoint = "Angled"
hole4.DrillPointAngle = 118
hole4.Reversed = True

doc.recompute()
